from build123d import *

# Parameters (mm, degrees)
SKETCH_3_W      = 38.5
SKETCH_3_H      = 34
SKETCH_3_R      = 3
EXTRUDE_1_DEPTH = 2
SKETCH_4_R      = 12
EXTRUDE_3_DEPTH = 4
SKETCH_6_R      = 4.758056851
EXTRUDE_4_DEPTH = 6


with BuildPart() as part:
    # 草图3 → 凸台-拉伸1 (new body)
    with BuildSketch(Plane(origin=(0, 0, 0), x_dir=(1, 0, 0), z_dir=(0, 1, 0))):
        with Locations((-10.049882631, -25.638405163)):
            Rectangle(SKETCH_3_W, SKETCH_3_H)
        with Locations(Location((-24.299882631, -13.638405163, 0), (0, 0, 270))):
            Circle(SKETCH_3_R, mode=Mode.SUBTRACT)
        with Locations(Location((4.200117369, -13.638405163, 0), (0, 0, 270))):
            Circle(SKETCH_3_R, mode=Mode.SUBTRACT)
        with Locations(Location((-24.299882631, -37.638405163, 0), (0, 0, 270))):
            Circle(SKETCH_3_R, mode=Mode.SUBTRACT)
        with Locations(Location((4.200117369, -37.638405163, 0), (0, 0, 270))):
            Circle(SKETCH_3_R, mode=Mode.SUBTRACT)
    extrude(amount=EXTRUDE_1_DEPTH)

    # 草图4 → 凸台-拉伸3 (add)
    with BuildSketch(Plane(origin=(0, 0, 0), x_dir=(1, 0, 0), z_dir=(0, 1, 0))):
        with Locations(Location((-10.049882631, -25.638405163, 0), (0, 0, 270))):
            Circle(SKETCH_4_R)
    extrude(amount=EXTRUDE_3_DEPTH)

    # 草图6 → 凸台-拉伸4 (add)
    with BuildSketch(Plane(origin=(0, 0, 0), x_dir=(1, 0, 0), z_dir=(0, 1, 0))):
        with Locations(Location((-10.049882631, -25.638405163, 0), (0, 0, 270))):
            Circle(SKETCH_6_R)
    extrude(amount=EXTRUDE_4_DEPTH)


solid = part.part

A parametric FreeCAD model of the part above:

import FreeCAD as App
import Part
import Sketcher

V = App.Vector
Q = App.Units.Quantity


def add_polygon(sketch, points):
    """Adds a closed chain of lines whose ends are joined by coincident constraints."""
    first, n = sketch.GeometryCount, len(points)
    for a, b in zip(points, points[1:] + points[:1]):
        sketch.addGeometry(Part.LineSegment(App.Vector(*a, 0), App.Vector(*b, 0)), False)
    for i in range(n):
        sketch.addConstraint(Sketcher.Constraint("Coincident", first + i, 2, first + (i + 1) % n, 1))

doc = App.newDocument("Part")
params = doc.addObject("Spreadsheet::Sheet", "Params")
for row, (alias, value) in enumerate([
    ("sketch1_diameter", "6 mm"),
    ("sketch1_height", "34 mm"),
    ("sketch1_width", "38.5 mm"),
    ("pad1_length", "2 mm"),
    ("sketch2_diameter", "24 mm"),
    ("pad2_length", "4 mm"),
    ("pad3_length", "6 mm"),
], start=1):
    params.set(f"A{row}", alias)
    params.set(f"B{row}", "=" + value)
    params.setAlias(f"B{row}", alias)

body = doc.addObject("PartDesign::Body", "Body")

sketch1 = body.newObject("Sketcher::SketchObject", "Sketch")
sketch1.AttachmentSupport = (doc.getObject("XZ_Plane"), [""])
sketch1.MapMode = "FlatFace"
add_polygon(sketch1, [(-29.3, 8.6), (-29.3, 42.6), (9.2, 42.6), (9.2, 8.6)])
sketch1.addGeometry(Part.Circle(V(-24.3, 37.6, 0), V(0, 0, 1), 3), False)
sketch1.addGeometry(Part.Circle(V(4.2, 37.6, 0), V(0, 0, 1), 3), False)
sketch1.addGeometry(Part.Circle(V(-24.3, 13.6, 0), V(0, 0, 1), 3), False)
sketch1.addGeometry(Part.Circle(V(4.2, 13.6, 0), V(0, 0, 1), 3), False)
sketch1.addConstraint(Sketcher.Constraint("Vertical", 0))
sketch1.addConstraint(Sketcher.Constraint("Horizontal", 1))
sketch1.addConstraint(Sketcher.Constraint("Vertical", 2))
sketch1.addConstraint(Sketcher.Constraint("Horizontal", 3))
sketch1.addConstraint(Sketcher.Constraint("Equal", 4, 5))
sketch1.addConstraint(Sketcher.Constraint("Equal", 5, 6))
sketch1.addConstraint(Sketcher.Constraint("Equal", 6, 7))
sketch1.addConstraint(Sketcher.Constraint("Horizontal", 4, 3, 5, 3))
sketch1.addConstraint(Sketcher.Constraint("Horizontal", 6, 3, 7, 3))
sketch1.addConstraint(Sketcher.Constraint("Vertical", 4, 3, 6, 3))
sketch1.addConstraint(Sketcher.Constraint("Vertical", 5, 3, 7, 3))
sketch1.addConstraint(Sketcher.Constraint("Diameter", 4, Q("6 mm")))
sketch1.addConstraint(Sketcher.Constraint("DistanceY", 0, 1, 0, 2, Q("34 mm")))
sketch1.addConstraint(Sketcher.Constraint("DistanceX", 1, 1, 1, 2, Q("38.5 mm")))
sketch1.addConstraint(Sketcher.Constraint("DistanceY", 6, 3, 4, 3, Q("24 mm")))
sketch1.addConstraint(Sketcher.Constraint("DistanceX", 0, 2, 4, 3, Q("5 mm")))
sketch1.addConstraint(Sketcher.Constraint("DistanceY", 4, 3, 0, 2, Q("5 mm")))
sketch1.addConstraint(Sketcher.Constraint("DistanceX", 5, 3, 1, 2, Q("5 mm")))
sketch1.addConstraint(Sketcher.Constraint("DistanceX", 4, 3, -1, 1, Q("24.299883 mm")))
sketch1.addConstraint(Sketcher.Constraint("DistanceY", -1, 1, 4, 3, Q("37.638405 mm")))
sketch1.setExpression("Constraints[15]", "Params.sketch1_diameter")
sketch1.setExpression("Constraints[16]", "Params.sketch1_height")
sketch1.setExpression("Constraints[17]", "Params.sketch1_width")
pad1 = body.newObject("PartDesign::Pad", "Pad")
pad1.Profile = sketch1
pad1.setExpression("Length", "Params.pad1_length")
pad1.Reversed = True

sketch2 = body.newObject("Sketcher::SketchObject", "Sketch001")
sketch2.AttachmentSupport = (doc.getObject("XZ_Plane"), [""])
sketch2.MapMode = "FlatFace"
sketch2.addGeometry(Part.Circle(V(-10, 26, 0), V(0, 0, 1), 12), False)
sketch2.addConstraint(Sketcher.Constraint("Diameter", 0, Q("24 mm")))
sketch2.addConstraint(Sketcher.Constraint("DistanceX", 0, 3, -1, 1, Q("10.049883 mm")))
sketch2.addConstraint(Sketcher.Constraint("DistanceY", -1, 1, 0, 3, Q("25.638405 mm")))
sketch2.setExpression("Constraints[0]", "Params.sketch2_diameter")
pad2 = body.newObject("PartDesign::Pad", "Pad001")
pad2.Profile = sketch2
pad2.setExpression("Length", "Params.pad2_length")
pad2.Reversed = True

sketch3 = body.newObject("Sketcher::SketchObject", "Sketch002")
sketch3.AttachmentSupport = (doc.getObject("XZ_Plane"), [""])
sketch3.MapMode = "FlatFace"
sketch3.addGeometry(Part.Circle(V(-10, 25.6, 0), V(0, 0, 1), 4.8), False)
sketch3.addConstraint(Sketcher.Constraint("Diameter", 0, Q("9.516114 mm")))
sketch3.addConstraint(Sketcher.Constraint("DistanceX", 0, 3, -1, 1, Q("10.049883 mm")))
sketch3.addConstraint(Sketcher.Constraint("DistanceY", -1, 1, 0, 3, Q("25.638405 mm")))
pad3 = body.newObject("PartDesign::Pad", "Pad002")
pad3.Profile = sketch3
pad3.setExpression("Length", "Params.pad3_length")
pad3.Reversed = True

doc.recompute()
